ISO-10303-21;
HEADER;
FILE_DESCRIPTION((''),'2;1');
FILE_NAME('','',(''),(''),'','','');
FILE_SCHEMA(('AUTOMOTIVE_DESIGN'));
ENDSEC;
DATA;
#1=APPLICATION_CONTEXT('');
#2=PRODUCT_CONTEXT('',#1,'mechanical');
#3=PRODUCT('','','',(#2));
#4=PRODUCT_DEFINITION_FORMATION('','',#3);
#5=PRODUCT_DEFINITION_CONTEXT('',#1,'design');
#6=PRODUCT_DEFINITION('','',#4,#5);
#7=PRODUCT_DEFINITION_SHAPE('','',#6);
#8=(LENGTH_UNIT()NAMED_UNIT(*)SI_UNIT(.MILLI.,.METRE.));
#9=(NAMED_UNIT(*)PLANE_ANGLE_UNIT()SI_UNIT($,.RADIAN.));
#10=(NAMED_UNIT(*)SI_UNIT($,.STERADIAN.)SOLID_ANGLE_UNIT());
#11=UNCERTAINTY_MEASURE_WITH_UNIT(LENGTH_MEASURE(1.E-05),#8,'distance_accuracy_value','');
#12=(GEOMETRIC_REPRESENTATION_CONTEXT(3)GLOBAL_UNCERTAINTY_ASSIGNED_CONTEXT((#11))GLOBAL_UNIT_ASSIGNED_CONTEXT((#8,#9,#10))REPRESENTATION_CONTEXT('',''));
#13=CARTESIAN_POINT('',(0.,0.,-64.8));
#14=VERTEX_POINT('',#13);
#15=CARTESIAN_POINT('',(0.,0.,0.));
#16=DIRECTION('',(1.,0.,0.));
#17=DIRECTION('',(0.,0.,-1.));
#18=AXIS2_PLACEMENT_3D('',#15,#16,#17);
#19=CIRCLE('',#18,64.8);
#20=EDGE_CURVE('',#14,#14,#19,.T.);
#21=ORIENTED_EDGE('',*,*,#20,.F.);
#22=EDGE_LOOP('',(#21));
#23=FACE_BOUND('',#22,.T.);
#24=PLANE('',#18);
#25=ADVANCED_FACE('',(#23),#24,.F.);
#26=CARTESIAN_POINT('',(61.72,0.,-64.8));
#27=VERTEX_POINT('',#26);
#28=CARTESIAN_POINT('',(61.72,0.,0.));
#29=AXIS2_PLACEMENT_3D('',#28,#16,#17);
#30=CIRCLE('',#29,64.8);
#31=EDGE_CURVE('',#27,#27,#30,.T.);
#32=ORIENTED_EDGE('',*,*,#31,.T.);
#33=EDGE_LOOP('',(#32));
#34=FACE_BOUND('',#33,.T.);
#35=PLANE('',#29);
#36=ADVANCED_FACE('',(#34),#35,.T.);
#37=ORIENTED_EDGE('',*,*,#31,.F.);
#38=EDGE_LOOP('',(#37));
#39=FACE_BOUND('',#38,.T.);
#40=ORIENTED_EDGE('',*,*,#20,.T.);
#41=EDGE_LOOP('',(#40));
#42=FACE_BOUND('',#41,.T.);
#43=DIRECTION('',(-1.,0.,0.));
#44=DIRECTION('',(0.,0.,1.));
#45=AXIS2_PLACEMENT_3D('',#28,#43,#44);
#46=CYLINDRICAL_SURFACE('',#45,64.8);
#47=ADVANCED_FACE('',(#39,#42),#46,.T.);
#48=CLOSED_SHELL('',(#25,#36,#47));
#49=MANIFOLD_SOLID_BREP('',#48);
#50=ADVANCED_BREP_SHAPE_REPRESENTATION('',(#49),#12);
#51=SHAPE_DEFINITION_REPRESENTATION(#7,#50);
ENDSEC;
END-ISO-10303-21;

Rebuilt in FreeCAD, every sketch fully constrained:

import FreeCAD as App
import Part
import Sketcher

V = App.Vector

doc = App.newDocument("Part")
body = doc.addObject("PartDesign::Body", "Body")

# Sketch on YZ plane
sketch1 = body.newObject("Sketcher::SketchObject", "Sketch")
sketch1.AttachmentSupport = (doc.getObject("YZ_Plane"), [""])
sketch1.MapMode = "FlatFace"
sketch1.addGeometry(Part.Circle(V(0, 0, 0), V(0, 0, 1), 65), False)
sketch1.addConstraint([
    Sketcher.Constraint("Coincident", 0, 3, -1, 1),
    Sketcher.Constraint("Diameter", 0, 129.6),
])
pad1 = body.newObject("PartDesign::Pad", "Pad")
pad1.Profile = sketch1
pad1.Length = 61.72

doc.recompute()
